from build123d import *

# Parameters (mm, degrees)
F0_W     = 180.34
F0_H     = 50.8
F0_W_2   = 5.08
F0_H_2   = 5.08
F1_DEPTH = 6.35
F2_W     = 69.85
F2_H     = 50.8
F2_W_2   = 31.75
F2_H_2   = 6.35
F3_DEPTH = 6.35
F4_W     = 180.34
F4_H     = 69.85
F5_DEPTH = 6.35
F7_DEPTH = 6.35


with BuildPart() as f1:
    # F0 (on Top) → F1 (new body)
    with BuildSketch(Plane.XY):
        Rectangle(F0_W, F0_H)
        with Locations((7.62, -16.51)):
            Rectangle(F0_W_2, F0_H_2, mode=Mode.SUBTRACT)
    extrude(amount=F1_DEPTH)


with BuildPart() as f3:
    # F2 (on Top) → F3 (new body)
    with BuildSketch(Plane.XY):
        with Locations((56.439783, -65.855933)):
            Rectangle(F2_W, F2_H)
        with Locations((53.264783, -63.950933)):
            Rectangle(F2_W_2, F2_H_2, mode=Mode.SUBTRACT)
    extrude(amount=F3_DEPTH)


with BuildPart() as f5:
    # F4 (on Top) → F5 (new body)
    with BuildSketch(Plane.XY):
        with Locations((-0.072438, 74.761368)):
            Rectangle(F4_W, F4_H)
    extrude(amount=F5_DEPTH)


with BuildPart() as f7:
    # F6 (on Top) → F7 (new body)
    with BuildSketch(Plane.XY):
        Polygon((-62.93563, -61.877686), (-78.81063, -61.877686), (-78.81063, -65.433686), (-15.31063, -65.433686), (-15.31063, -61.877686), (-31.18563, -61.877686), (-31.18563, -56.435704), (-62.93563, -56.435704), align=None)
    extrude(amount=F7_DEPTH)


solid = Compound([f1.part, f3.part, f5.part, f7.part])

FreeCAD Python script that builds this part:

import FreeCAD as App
import Part
import Sketcher

V = App.Vector
Q = App.Units.Quantity

doc = App.newDocument("Part")
body = doc.addObject("PartDesign::Body", "Body")

# Sketch on XY plane
sketch1 = doc.addObject("Sketcher::SketchObject", "Sketch")
body.addObject(sketch1)
sketch1.AttachmentSupport = (doc.XY_Plane, [""])
sketch1.MapMode = "FlatFace"
sketch1.addGeometry(Part.LineSegment(V(-90.17, 25.4, 0), V(-90.17, -25.4, 0)), False)
sketch1.addGeometry(Part.LineSegment(V(-90.17, -25.4, 0), V(90.17, -25.4, 0)), False)
sketch1.addGeometry(Part.LineSegment(V(90.17, -25.4, 0), V(90.17, 25.4, 0)), False)
sketch1.addGeometry(Part.LineSegment(V(90.17, 25.4, 0), V(-90.17, 25.4, 0)), False)
sketch1.addGeometry(Part.LineSegment(V(10.16, -19.05, 0), V(5.08, -19.05, 0)), False)
sketch1.addGeometry(Part.LineSegment(V(5.08, -19.05, 0), V(5.08, -13.97, 0)), False)
sketch1.addGeometry(Part.LineSegment(V(5.08, -13.97, 0), V(10.16, -13.97, 0)), False)
sketch1.addGeometry(Part.LineSegment(V(10.16, -13.97, 0), V(10.16, -19.05, 0)), False)
sketch1.addConstraint(Sketcher.Constraint("Coincident", 0, 2, 1, 1))
sketch1.addConstraint(Sketcher.Constraint("Coincident", 1, 2, 2, 1))
sketch1.addConstraint(Sketcher.Constraint("Coincident", 2, 2, 3, 1))
sketch1.addConstraint(Sketcher.Constraint("Coincident", 3, 2, 0, 1))
sketch1.addConstraint(Sketcher.Constraint("Coincident", 4, 2, 5, 1))
sketch1.addConstraint(Sketcher.Constraint("Coincident", 5, 2, 6, 1))
sketch1.addConstraint(Sketcher.Constraint("Coincident", 6, 2, 7, 1))
sketch1.addConstraint(Sketcher.Constraint("Coincident", 7, 2, 4, 1))
sketch1.addConstraint(Sketcher.Constraint("Vertical", 0))
sketch1.addConstraint(Sketcher.Constraint("Horizontal", 1))
sketch1.addConstraint(Sketcher.Constraint("Vertical", 2))
sketch1.addConstraint(Sketcher.Constraint("Horizontal", 3))
sketch1.addConstraint(Sketcher.Constraint("Horizontal", 4))
sketch1.addConstraint(Sketcher.Constraint("Vertical", 5))
sketch1.addConstraint(Sketcher.Constraint("Horizontal", 6))
sketch1.addConstraint(Sketcher.Constraint("Vertical", 7))
sketch1.addConstraint(Sketcher.Constraint("Symmetric", 0, 2, 2, 2, -1, 1))
sketch1.addConstraint(Sketcher.Constraint("Equal", 6, 5))
sketch1.addConstraint(Sketcher.Constraint("DistanceY", 0, 2, 0, 1, Q("2 in")))
sketch1.addConstraint(Sketcher.Constraint("DistanceX", 1, 1, 1, 2, Q("7.1 in")))
sketch1.addConstraint(Sketcher.Constraint("DistanceX", 4, 2, 4, 1, Q("0.2 in")))
sketch1.addConstraint(Sketcher.Constraint("DistanceX", -1, 1, 4, 2, Q("0.2 in")))
sketch1.addConstraint(Sketcher.Constraint("DistanceY", 4, 2, -1, 1, Q("0.75 in")))
pad1 = doc.addObject("PartDesign::Pad", "Pad")
body.addObject(pad1)
pad1.Profile = sketch1
pad1.Length = Q("0.25 in")
body2 = doc.addObject("PartDesign::Body", "Body001")

# Sketch on XY plane
sketch2 = doc.addObject("Sketcher::SketchObject", "Sketch001")
body2.addObject(sketch2)
sketch2.AttachmentSupport = (doc.getObject("XY_Plane001"), [""])
sketch2.MapMode = "FlatFace"
sketch2.addGeometry(Part.LineSegment(V(21.514783, -40.455933, 0), V(21.514783, -91.255933, 0)), False)
sketch2.addGeometry(Part.LineSegment(V(21.514783, -91.255933, 0), V(91.364783, -91.255933, 0)), False)
sketch2.addGeometry(Part.LineSegment(V(91.364783, -91.255933, 0), V(91.364783, -40.455933, 0)), False)
sketch2.addGeometry(Part.LineSegment(V(91.364783, -40.455933, 0), V(21.514783, -40.455933, 0)), False)
sketch2.addGeometry(Part.LineSegment(V(69.139783, -67.125933, 0), V(37.389783, -67.125933, 0)), False)
sketch2.addGeometry(Part.LineSegment(V(37.389783, -67.125933, 0), V(37.389783, -60.775933, 0)), False)
sketch2.addGeometry(Part.LineSegment(V(37.389783, -60.775933, 0), V(69.139783, -60.775933, 0)), False)
sketch2.addGeometry(Part.LineSegment(V(69.139783, -60.775933, 0), V(69.139783, -67.125933, 0)), False)
sketch2.addConstraint(Sketcher.Constraint("Coincident", 0, 2, 1, 1))
sketch2.addConstraint(Sketcher.Constraint("Coincident", 1, 2, 2, 1))
sketch2.addConstraint(Sketcher.Constraint("Coincident", 2, 2, 3, 1))
sketch2.addConstraint(Sketcher.Constraint("Coincident", 3, 2, 0, 1))
sketch2.addConstraint(Sketcher.Constraint("Coincident", 4, 2, 5, 1))
sketch2.addConstraint(Sketcher.Constraint("Coincident", 5, 2, 6, 1))
sketch2.addConstraint(Sketcher.Constraint("Coincident", 6, 2, 7, 1))
sketch2.addConstraint(Sketcher.Constraint("Coincident", 7, 2, 4, 1))
sketch2.addConstraint(Sketcher.Constraint("Vertical", 0))
sketch2.addConstraint(Sketcher.Constraint("Horizontal", 1))
sketch2.addConstraint(Sketcher.Constraint("Vertical", 2))
sketch2.addConstraint(Sketcher.Constraint("Horizontal", 3))
sketch2.addConstraint(Sketcher.Constraint("Horizontal", 4))
sketch2.addConstraint(Sketcher.Constraint("Vertical", 5))
sketch2.addConstraint(Sketcher.Constraint("Horizontal", 6))
sketch2.addConstraint(Sketcher.Constraint("Vertical", 7))
sketch2.addConstraint(Sketcher.Constraint("DistanceY", 0, 2, 0, 1, Q("2 in")))
sketch2.addConstraint(Sketcher.Constraint("DistanceX", 1, 1, 1, 2, Q("2.75 in")))
sketch2.addConstraint(Sketcher.Constraint("DistanceX", 4, 2, 4, 1, Q("1.25 in")))
sketch2.addConstraint(Sketcher.Constraint("DistanceY", 5, 1, 5, 2, Q("0.25 in")))
sketch2.addConstraint(Sketcher.Constraint("DistanceY", 5, 2, 3, 2, Q("0.8 in")))
sketch2.addConstraint(Sketcher.Constraint("DistanceX", 0, 2, 4, 2, Q("0.625 in")))
sketch2.addConstraint(Sketcher.Constraint("DistanceX", -1, 1, 0, 2, Q("21.514783 mm")))
sketch2.addConstraint(Sketcher.Constraint("DistanceY", 0, 2, -1, 1, Q("91.255933 mm")))
pad2 = doc.addObject("PartDesign::Pad", "Pad001")
body2.addObject(pad2)
pad2.Profile = sketch2
pad2.Length = Q("0.25 in")
body3 = doc.addObject("PartDesign::Body", "Body002")

# Sketch on XY plane
sketch3 = doc.addObject("Sketcher::SketchObject", "Sketch002")
body3.addObject(sketch3)
sketch3.AttachmentSupport = (doc.getObject("XY_Plane002"), [""])
sketch3.MapMode = "FlatFace"
sketch3.addGeometry(Part.LineSegment(V(-90.242438, 109.686368, 0), V(-90.242438, 39.836368, 0)), False)
sketch3.addGeometry(Part.LineSegment(V(-90.242438, 39.836368, 0), V(90.097562, 39.836368, 0)), False)
sketch3.addGeometry(Part.LineSegment(V(90.097562, 39.836368, 0), V(90.097562, 109.686368, 0)), False)
sketch3.addGeometry(Part.LineSegment(V(90.097562, 109.686368, 0), V(-90.242438, 109.686368, 0)), False)
sketch3.addConstraint(Sketcher.Constraint("Coincident", 0, 2, 1, 1))
sketch3.addConstraint(Sketcher.Constraint("Coincident", 1, 2, 2, 1))
sketch3.addConstraint(Sketcher.Constraint("Coincident", 2, 2, 3, 1))
sketch3.addConstraint(Sketcher.Constraint("Coincident", 3, 2, 0, 1))
sketch3.addConstraint(Sketcher.Constraint("Vertical", 0))
sketch3.addConstraint(Sketcher.Constraint("Horizontal", 1))
sketch3.addConstraint(Sketcher.Constraint("Vertical", 2))
sketch3.addConstraint(Sketcher.Constraint("Horizontal", 3))
sketch3.addConstraint(Sketcher.Constraint("DistanceX", 1, 1, 1, 2, Q("7.1 in")))
sketch3.addConstraint(Sketcher.Constraint("DistanceY", 0, 2, 0, 1, Q("2.75 in")))
sketch3.addConstraint(Sketcher.Constraint("DistanceX", 0, 2, -1, 1, Q("90.242438 mm")))
sketch3.addConstraint(Sketcher.Constraint("DistanceY", -1, 1, 2, 2, Q("109.686368 mm")))
pad3 = doc.addObject("PartDesign::Pad", "Pad002")
body3.addObject(pad3)
pad3.Profile = sketch3
pad3.Length = Q("0.25 in")
body4 = doc.addObject("PartDesign::Body", "Body003")

# Sketch on XY plane
sketch4 = doc.addObject("Sketcher::SketchObject", "Sketch003")
body4.addObject(sketch4)
sketch4.AttachmentSupport = (doc.getObject("XY_Plane003"), [""])
sketch4.MapMode = "FlatFace"
sketch4.addGeometry(Part.LineSegment(V(-62.93563, -61.877686, 0), V(-78.81063, -61.877686, 0)), False)
sketch4.addGeometry(Part.LineSegment(V(-78.81063, -61.877686, 0), V(-78.81063, -65.433686, 0)), False)
sketch4.addGeometry(Part.LineSegment(V(-78.81063, -65.433686, 0), V(-15.31063, -65.433686, 0)), False)
sketch4.addGeometry(Part.LineSegment(V(-15.31063, -65.433686, 0), V(-15.31063, -61.877686, 0)), False)
sketch4.addGeometry(Part.LineSegment(V(-15.31063, -61.877686, 0), V(-31.18563, -61.877686, 0)), False)
sketch4.addGeometry(Part.LineSegment(V(-31.18563, -61.877686, 0), V(-31.18563, -56.435704, 0)), False)
sketch4.addGeometry(Part.LineSegment(V(-31.18563, -56.435704, 0), V(-62.93563, -56.435704, 0)), False)
sketch4.addGeometry(Part.LineSegment(V(-62.93563, -56.435704, 0), V(-62.93563, -61.877686, 0)), False)
sketch4.addConstraint(Sketcher.Constraint("Coincident", 0, 2, 1, 1))
sketch4.addConstraint(Sketcher.Constraint("Coincident", 1, 2, 2, 1))
sketch4.addConstraint(Sketcher.Constraint("Coincident", 2, 2, 3, 1))
sketch4.addConstraint(Sketcher.Constraint("Coincident", 3, 2, 4, 1))
sketch4.addConstraint(Sketcher.Constraint("Coincident", 4, 2, 5, 1))
sketch4.addConstraint(Sketcher.Constraint("Coincident", 5, 2, 6, 1))
sketch4.addConstraint(Sketcher.Constraint("Coincident", 6, 2, 7, 1))
sketch4.addConstraint(Sketcher.Constraint("Coincident", 7, 2, 0, 1))
sketch4.addConstraint(Sketcher.Constraint("Horizontal", 0))
sketch4.addConstraint(Sketcher.Constraint("Vertical", 1))
sketch4.addConstraint(Sketcher.Constraint("Horizontal", 2))
sketch4.addConstraint(Sketcher.Constraint("Vertical", 3))
sketch4.addConstraint(Sketcher.Constraint("Horizontal", 4))
sketch4.addConstraint(Sketcher.Constraint("Vertical", 5))
sketch4.addConstraint(Sketcher.Constraint("Horizontal", 6))
sketch4.addConstraint(Sketcher.Constraint("Vertical", 7))
sketch4.addConstraint(Sketcher.Constraint("Horizontal", 0, 2, 3, 2))
sketch4.addConstraint(Sketcher.Constraint("Equal", 0, 4))
sketch4.addConstraint(Sketcher.Constraint("DistanceX", 2, 1, 2, 2, Q("2.5 in")))
sketch4.addConstraint(Sketcher.Constraint("DistanceX", 6, 2, 6, 1, Q("1.25 in")))
sketch4.addConstraint(Sketcher.Constraint("DistanceY", 1, 2, 1, 1, Q("0.14 in")))
sketch4.addConstraint(Sketcher.Constraint("DistanceY", 5, 1, 5, 2, Q("5.441982 mm")))
sketch4.addConstraint(Sketcher.Constraint("DistanceX", 0, 2, -1, 1, Q("78.81063 mm")))
sketch4.addConstraint(Sketcher.Constraint("DistanceY", 0, 2, -1, 1, Q("61.877686 mm")))
pad4 = doc.addObject("PartDesign::Pad", "Pad003")
body4.addObject(pad4)
pad4.Profile = sketch4
pad4.Length = Q("0.25 in")

doc.recompute()
